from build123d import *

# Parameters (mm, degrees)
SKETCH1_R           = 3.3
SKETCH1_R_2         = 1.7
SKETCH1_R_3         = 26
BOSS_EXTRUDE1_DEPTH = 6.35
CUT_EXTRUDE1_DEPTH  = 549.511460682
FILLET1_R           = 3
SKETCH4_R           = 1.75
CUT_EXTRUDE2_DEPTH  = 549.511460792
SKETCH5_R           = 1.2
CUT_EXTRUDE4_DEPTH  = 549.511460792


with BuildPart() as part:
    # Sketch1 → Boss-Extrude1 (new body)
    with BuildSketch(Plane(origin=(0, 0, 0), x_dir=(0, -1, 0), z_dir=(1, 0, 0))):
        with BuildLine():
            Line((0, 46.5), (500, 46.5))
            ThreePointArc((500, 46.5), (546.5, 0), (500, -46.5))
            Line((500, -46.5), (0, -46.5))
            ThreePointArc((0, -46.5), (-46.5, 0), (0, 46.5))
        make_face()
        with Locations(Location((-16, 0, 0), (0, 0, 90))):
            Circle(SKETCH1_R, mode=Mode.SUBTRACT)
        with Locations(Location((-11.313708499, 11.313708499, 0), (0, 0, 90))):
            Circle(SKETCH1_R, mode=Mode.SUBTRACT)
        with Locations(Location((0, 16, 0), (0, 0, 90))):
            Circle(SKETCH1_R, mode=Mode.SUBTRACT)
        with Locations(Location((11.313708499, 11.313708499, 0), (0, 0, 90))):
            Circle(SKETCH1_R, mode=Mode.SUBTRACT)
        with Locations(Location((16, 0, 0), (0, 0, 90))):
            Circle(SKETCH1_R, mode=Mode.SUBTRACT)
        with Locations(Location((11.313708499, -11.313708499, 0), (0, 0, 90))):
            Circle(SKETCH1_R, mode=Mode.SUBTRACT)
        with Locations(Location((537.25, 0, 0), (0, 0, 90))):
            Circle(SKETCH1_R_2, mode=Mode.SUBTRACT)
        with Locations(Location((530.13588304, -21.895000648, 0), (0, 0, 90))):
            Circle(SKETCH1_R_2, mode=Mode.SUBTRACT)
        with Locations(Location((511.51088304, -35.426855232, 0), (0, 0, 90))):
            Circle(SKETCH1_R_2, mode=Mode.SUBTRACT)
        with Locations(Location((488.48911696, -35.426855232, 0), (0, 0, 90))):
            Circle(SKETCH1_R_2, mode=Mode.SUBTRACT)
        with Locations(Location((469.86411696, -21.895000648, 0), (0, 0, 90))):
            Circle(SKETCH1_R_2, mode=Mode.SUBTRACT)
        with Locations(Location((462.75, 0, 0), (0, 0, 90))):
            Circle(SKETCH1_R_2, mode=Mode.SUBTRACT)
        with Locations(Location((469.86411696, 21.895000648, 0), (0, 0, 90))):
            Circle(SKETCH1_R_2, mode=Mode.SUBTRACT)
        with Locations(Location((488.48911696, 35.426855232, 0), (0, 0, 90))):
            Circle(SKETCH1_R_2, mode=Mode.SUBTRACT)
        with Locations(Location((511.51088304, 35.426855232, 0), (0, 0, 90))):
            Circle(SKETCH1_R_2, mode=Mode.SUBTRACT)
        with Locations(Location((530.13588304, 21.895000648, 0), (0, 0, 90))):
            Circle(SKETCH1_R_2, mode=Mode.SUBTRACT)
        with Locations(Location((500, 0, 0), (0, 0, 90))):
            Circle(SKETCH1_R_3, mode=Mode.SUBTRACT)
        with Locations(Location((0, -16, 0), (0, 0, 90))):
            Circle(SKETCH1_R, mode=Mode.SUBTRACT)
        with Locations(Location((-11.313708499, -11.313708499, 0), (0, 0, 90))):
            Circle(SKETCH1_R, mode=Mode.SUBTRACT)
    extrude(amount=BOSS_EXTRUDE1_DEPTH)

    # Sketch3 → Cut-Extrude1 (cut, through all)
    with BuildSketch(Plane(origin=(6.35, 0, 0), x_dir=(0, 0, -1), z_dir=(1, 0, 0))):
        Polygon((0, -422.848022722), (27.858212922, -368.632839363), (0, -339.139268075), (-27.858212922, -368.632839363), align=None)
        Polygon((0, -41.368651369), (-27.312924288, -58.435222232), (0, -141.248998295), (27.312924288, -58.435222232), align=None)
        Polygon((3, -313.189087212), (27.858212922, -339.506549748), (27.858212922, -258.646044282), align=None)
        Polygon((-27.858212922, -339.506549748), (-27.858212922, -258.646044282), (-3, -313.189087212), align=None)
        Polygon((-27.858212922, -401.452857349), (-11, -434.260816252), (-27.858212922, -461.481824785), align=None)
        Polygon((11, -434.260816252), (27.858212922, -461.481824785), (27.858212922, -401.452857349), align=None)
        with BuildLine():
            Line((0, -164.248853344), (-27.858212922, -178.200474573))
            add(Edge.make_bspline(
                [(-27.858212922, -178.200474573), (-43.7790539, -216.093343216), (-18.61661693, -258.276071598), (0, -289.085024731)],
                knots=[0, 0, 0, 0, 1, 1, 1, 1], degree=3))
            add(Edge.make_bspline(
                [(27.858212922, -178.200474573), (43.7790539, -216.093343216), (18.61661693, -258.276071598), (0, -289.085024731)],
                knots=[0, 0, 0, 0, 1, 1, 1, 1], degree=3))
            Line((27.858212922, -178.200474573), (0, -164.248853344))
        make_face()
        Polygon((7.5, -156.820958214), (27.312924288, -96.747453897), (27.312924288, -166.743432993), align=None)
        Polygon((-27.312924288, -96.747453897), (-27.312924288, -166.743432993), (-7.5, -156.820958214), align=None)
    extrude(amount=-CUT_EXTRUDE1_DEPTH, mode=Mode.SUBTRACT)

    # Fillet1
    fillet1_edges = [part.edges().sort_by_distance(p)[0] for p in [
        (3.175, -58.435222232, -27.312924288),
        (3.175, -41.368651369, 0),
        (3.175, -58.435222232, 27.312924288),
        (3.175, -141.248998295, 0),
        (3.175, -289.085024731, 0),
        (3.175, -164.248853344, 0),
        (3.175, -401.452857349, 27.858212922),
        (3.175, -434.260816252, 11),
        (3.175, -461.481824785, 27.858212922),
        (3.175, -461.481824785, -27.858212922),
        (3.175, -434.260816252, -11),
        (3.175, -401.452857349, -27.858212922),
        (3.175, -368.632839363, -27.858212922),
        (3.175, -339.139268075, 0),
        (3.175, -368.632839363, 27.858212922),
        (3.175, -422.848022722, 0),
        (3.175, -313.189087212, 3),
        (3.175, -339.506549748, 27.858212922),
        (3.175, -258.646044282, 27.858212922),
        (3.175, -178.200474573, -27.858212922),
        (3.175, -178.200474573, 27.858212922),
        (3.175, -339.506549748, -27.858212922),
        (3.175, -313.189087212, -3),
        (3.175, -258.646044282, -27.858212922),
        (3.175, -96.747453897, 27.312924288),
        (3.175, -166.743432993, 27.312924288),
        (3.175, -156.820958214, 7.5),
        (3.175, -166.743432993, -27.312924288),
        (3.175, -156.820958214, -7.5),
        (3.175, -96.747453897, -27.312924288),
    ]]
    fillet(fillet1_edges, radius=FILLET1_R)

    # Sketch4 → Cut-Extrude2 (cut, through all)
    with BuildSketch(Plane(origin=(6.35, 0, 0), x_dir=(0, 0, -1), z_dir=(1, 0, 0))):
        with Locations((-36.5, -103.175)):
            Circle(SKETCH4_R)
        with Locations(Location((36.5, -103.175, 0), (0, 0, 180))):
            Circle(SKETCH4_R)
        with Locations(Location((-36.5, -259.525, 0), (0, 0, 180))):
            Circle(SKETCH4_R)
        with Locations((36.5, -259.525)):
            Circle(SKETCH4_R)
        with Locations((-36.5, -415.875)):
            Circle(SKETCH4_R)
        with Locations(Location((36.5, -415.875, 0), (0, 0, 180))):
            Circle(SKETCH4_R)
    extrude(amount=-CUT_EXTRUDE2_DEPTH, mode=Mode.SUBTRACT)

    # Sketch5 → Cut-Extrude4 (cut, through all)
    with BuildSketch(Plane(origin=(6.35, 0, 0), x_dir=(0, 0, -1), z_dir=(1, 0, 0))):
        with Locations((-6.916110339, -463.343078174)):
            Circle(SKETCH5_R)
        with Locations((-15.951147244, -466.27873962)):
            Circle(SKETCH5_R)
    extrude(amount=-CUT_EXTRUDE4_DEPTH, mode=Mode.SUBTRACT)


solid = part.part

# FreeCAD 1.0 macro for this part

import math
import FreeCAD as App
import Part
import Sketcher

V = App.Vector


def edges_at(feature, points):
    """Names of the edges that pass closest to the given points."""
    edges = feature.Shape.Edges
    near = lambda p: min(range(len(edges)), key=lambda i: edges[i].distToShape(Part.Vertex(*p))[0])
    return sorted({f"Edge{near(p) + 1}" for p in points})

doc = App.newDocument("Part")
body = doc.addObject("PartDesign::Body", "Body")

# Sketch on YZ plane
sketch1 = body.newObject("Sketcher::SketchObject", "Sketch")
sketch1.AttachmentSupport = (doc.getObject("YZ_Plane"), [""])
sketch1.MapMode = "FlatFace"
sketch1.addGeometry([
    Part.LineSegment(V(-500, -46.5, 0), V(0, -46.5, 0)),  # 0
    Part.ArcOfCircle(Part.Circle(V(0, 0, 0), V(0, 0, 1), 46.5), math.radians(-90), math.radians(90)),  # 1
    Part.LineSegment(V(0, 46.5, 0), V(-500, 46.5, 0)),  # 2
    Part.ArcOfCircle(Part.Circle(V(-500, 0, 0), V(0, 0, 1), 46.5), math.radians(90), math.radians(270)),  # 3
    Part.Circle(V(-511.5, 35.4, 0), V(0, 0, 1), 1.7),  # 4
    Part.Circle(V(-488.5, 35.4, 0), V(0, 0, 1), 1.7),  # 5
    Part.Circle(V(-530.1, 21.9, 0), V(0, 0, 1), 1.7),  # 6
    Part.Circle(V(-469.9, 21.9, 0), V(0, 0, 1), 1.7),  # 7
    Part.Circle(V(0, 16, 0), V(0, 0, 1), 3.3),  # 8
    Part.Circle(V(-11.3, 11.3, 0), V(0, 0, 1), 3.3),  # 9
    Part.Circle(V(11.3, 11.3, 0), V(0, 0, 1), 3.3),  # 10
    Part.Circle(V(-537.2, 0, 0), V(0, 0, 1), 1.7),  # 11
    Part.Circle(V(-500, 0, 0), V(0, 0, 1), 26),  # 12
    Part.Circle(V(-462.8, 0, 0), V(0, 0, 1), 1.7),  # 13
    Part.Circle(V(-530.1, -21.9, 0), V(0, 0, 1), 1.7),  # 14
    Part.Circle(V(-469.9, -21.9, 0), V(0, 0, 1), 1.7),  # 15
    Part.Circle(V(-511.5, -35.4, 0), V(0, 0, 1), 1.7),  # 16
    Part.Circle(V(-488.5, -35.4, 0), V(0, 0, 1), 1.7),  # 17
    Part.Circle(V(-16, 0, 0), V(0, 0, 1), 3.3),  # 18
    Part.Circle(V(16, 0, 0), V(0, 0, 1), 3.3),  # 19
    Part.Circle(V(-11.3, -11.3, 0), V(0, 0, 1), 3.3),  # 20
    Part.Circle(V(11.3, -11.3, 0), V(0, 0, 1), 3.3),  # 21
    Part.Circle(V(0, -16, 0), V(0, 0, 1), 3.3),  # 22
], False)
sketch1.addConstraint([
    Sketcher.Constraint("Tangent", 0, 2, 1, 1),
    Sketcher.Constraint("Tangent", 1, 2, 2, 1),
    Sketcher.Constraint("Tangent", 2, 2, 3, 1),
    Sketcher.Constraint("Tangent", 3, 2, 0, 1),
    Sketcher.Constraint("Horizontal", 0),
    Sketcher.Constraint("Horizontal", 2),
    Sketcher.Constraint("Coincident", 1, 3, -1, 1),
    Sketcher.Constraint("Coincident", 12, 3, 3, 3),
    Sketcher.Constraint("Equal", 4, 5),
    Sketcher.Constraint("Equal", 5, 6),
    Sketcher.Constraint("Equal", 6, 7),
    Sketcher.Constraint("Equal", 8, 9),
    Sketcher.Constraint("Equal", 9, 10),
    Sketcher.Constraint("Equal", 7, 11),
    Sketcher.Constraint("Equal", 11, 13),
    Sketcher.Constraint("Equal", 13, 14),
    Sketcher.Constraint("Equal", 14, 15),
    Sketcher.Constraint("Equal", 15, 16),
    Sketcher.Constraint("Equal", 16, 17),
    Sketcher.Constraint("Equal", 10, 18),
    Sketcher.Constraint("Equal", 18, 19),
    Sketcher.Constraint("Equal", 19, 20),
    Sketcher.Constraint("Equal", 20, 21),
    Sketcher.Constraint("Equal", 21, 22),
    Sketcher.Constraint("Symmetric", 18, 3, 19, 3, -1, 1),
    Sketcher.Constraint("Symmetric", 10, 3, 20, 3, -1, 1),
    Sketcher.Constraint("Symmetric", 9, 3, 21, 3, -1, 1),
    Sketcher.Constraint("Symmetric", 8, 3, 22, 3, -1, 1),
    Sketcher.Constraint("Symmetric", 9, 3, 10, 3, -2),
    Sketcher.Constraint("Symmetric", 6, 3, 14, 3, -1),
    Sketcher.Constraint("Symmetric", 7, 3, 15, 3, -1),
    Sketcher.Constraint("Symmetric", 4, 3, 16, 3, -1),
    Sketcher.Constraint("Symmetric", 5, 3, 17, 3, -1),
    Sketcher.Constraint("PointOnObject", 8, 3, -2),
    Sketcher.Constraint("PointOnObject", 11, 3, -1),
    Sketcher.Constraint("PointOnObject", 13, 3, -1),
    Sketcher.Constraint("PointOnObject", 18, 3, -1),
    Sketcher.Constraint("Horizontal", 4, 3, 5, 3),
    Sketcher.Constraint("Horizontal", 6, 3, 7, 3),
    Sketcher.Constraint("Diameter", 12, 52.0),
    Sketcher.Constraint("Diameter", 4, 3.4),
    Sketcher.Constraint("Diameter", 8, 6.6),
    Sketcher.Constraint("Radius", 1, 46.5),
    Sketcher.Constraint("DistanceX", 0, 1, 0, 2, 500.0),
    Sketcher.Constraint("DistanceY", -1, 1, 8, 3, 16.0),
    Sketcher.Constraint("DistanceX", 18, 3, -1, 1, 16.0),
    Sketcher.Constraint("DistanceX", 11, 3, -1, 1, 537.25),
    Sketcher.Constraint("DistanceX", 13, 3, -1, 1, 462.75),
    Sketcher.Constraint("DistanceY", 14, 3, 6, 3, 43.790001),
    Sketcher.Constraint("DistanceX", 6, 3, 4, 3, 18.625),
    Sketcher.Constraint("DistanceX", 5, 3, 7, 3, 18.625),
    Sketcher.Constraint("DistanceX", 9, 3, -1, 1, 11.313708),
    Sketcher.Constraint("DistanceY", -1, 1, 9, 3, 11.313708),
    Sketcher.Constraint("DistanceX", 7, 3, 9, 3, 458.550408),
    Sketcher.Constraint("DistanceX", 4, 3, -1, 1, 511.510883),
    Sketcher.Constraint("DistanceY", -1, 1, 4, 3, 35.426855),
])
pad1 = body.newObject("PartDesign::Pad", "Pad")
pad1.Profile = sketch1
pad1.Length = 6.35

# Sketch on YZ plane
sketch2 = body.newObject("Sketcher::SketchObject", "Sketch001")
sketch2.AttachmentSupport = (doc.getObject("YZ_Plane"), [""])
sketch2.MapMode = "FlatFace"
sketch2.AttachmentOffset = App.Placement(V(0, 0, 6.35), App.Rotation())
sketch2.addGeometry([
    Part.LineSegment(V(-422.848023, 0, 0), V(-368.632839, -27.858213, 0)),  # 0
    Part.LineSegment(V(-368.632839, -27.858213, 0), V(-339.139268, 0, 0)),  # 1
    Part.LineSegment(V(-339.139268, 0, 0), V(-368.632839, 27.858213, 0)),  # 2
    Part.LineSegment(V(-368.632839, 27.858213, 0), V(-422.848023, 0, 0)),  # 3
    Part.LineSegment(V(-41.368651, 0, 0), V(-58.435222, 27.312924, 0)),  # 4
    Part.LineSegment(V(-58.435222, 27.312924, 0), V(-141.248998, 0, 0)),  # 5
    Part.LineSegment(V(-141.248998, 0, 0), V(-58.435222, -27.312924, 0)),  # 6
    Part.LineSegment(V(-58.435222, -27.312924, 0), V(-41.368651, 0, 0)),  # 7
    Part.LineSegment(V(-313.189087, -3, 0), V(-339.50655, -27.858213, 0)),  # 8
    Part.LineSegment(V(-339.50655, -27.858213, 0), V(-258.646044, -27.858213, 0)),  # 9
    Part.LineSegment(V(-258.646044, -27.858213, 0), V(-313.189087, -3, 0)),  # 10
    Part.LineSegment(V(-258.646044, 27.858213, 0), V(-339.50655, 27.858213, 0)),  # 11
    Part.LineSegment(V(-339.50655, 27.858213, 0), V(-313.189087, 3, 0)),  # 12
    Part.LineSegment(V(-313.189087, 3, 0), V(-258.646044, 27.858213, 0)),  # 13
    Part.LineSegment(V(-434.260816, 11, 0), V(-401.452857, 27.858213, 0)),  # 14
    Part.LineSegment(V(-401.452857, 27.858213, 0), V(-461.481825, 27.858213, 0)),  # 15
    Part.LineSegment(V(-461.481825, 27.858213, 0), V(-434.260816, 11, 0)),  # 16
    Part.LineSegment(V(-434.260816, -11, 0), V(-461.481825, -27.858213, 0)),  # 17
    Part.LineSegment(V(-461.481825, -27.858213, 0), V(-401.452857, -27.858213, 0)),  # 18
    Part.LineSegment(V(-401.452857, -27.858213, 0), V(-434.260816, -11, 0)),  # 19
    Part.LineSegment(V(-164.248853, 0, 0), V(-178.200475, 27.858213, 0)),  # 20
    Part.BSplineCurve([V(-178.200475, 27.858213, 0), V(-216.093343, 43.779054, 0), V(-258.276072, 18.616617, 0), V(-289.085025, 0, 0)], [4, 4], [0, 1], False, 3, [1, 1, 1, 1], False),  # 21
    Part.BSplineCurve([V(-178.200475, -27.858213, 0), V(-216.093343, -43.779054, 0), V(-258.276072, -18.616617, 0), V(-289.085025, 0, 0)], [4, 4], [0, 1], False, 3, [1, 1, 1, 1], False),  # 22
    Part.LineSegment(V(-178.200475, -27.858213, 0), V(-164.248853, 0, 0)),  # 23
    Part.LineSegment(V(-96.747454, -27.312924, 0), V(-156.820958, -7.5, 0)),  # 24
    Part.LineSegment(V(-156.820958, -7.5, 0), V(-166.743433, -27.312924, 0)),  # 25
    Part.LineSegment(V(-166.743433, -27.312924, 0), V(-96.747454, -27.312924, 0)),  # 26
    Part.LineSegment(V(-96.747454, 27.312924, 0), V(-166.743433, 27.312924, 0)),  # 27
    Part.LineSegment(V(-166.743433, 27.312924, 0), V(-156.820958, 7.5, 0)),  # 28
    Part.LineSegment(V(-156.820958, 7.5, 0), V(-96.747454, 27.312924, 0)),  # 29
], False)
sketch2.addConstraint([
    Sketcher.Constraint("Block", 21),
    Sketcher.Constraint("Block", 22),
    Sketcher.Constraint("Coincident", 0, 2, 1, 1),
    Sketcher.Constraint("Coincident", 1, 2, 2, 1),
    Sketcher.Constraint("Coincident", 2, 2, 3, 1),
    Sketcher.Constraint("Coincident", 3, 2, 0, 1),
    Sketcher.Constraint("Coincident", 4, 2, 5, 1),
    Sketcher.Constraint("Coincident", 5, 2, 6, 1),
    Sketcher.Constraint("Coincident", 6, 2, 7, 1),
    Sketcher.Constraint("Coincident", 7, 2, 4, 1),
    Sketcher.Constraint("Coincident", 8, 2, 9, 1),
    Sketcher.Constraint("Coincident", 9, 2, 10, 1),
    Sketcher.Constraint("Coincident", 10, 2, 8, 1),
    Sketcher.Constraint("Coincident", 11, 2, 12, 1),
    Sketcher.Constraint("Coincident", 12, 2, 13, 1),
    Sketcher.Constraint("Coincident", 13, 2, 11, 1),
    Sketcher.Constraint("Coincident", 14, 2, 15, 1),
    Sketcher.Constraint("Coincident", 15, 2, 16, 1),
    Sketcher.Constraint("Coincident", 16, 2, 14, 1),
    Sketcher.Constraint("Coincident", 17, 2, 18, 1),
    Sketcher.Constraint("Coincident", 18, 2, 19, 1),
    Sketcher.Constraint("Coincident", 19, 2, 17, 1),
    Sketcher.Constraint("Coincident", 20, 2, 21, 1),
    Sketcher.Constraint("Coincident", 22, 1, 23, 1),
    Sketcher.Constraint("Coincident", 23, 2, 20, 1),
    Sketcher.Constraint("Coincident", 24, 2, 25, 1),
    Sketcher.Constraint("Coincident", 25, 2, 26, 1),
    Sketcher.Constraint("Coincident", 26, 2, 24, 1),
    Sketcher.Constraint("Coincident", 27, 2, 28, 1),
    Sketcher.Constraint("Coincident", 28, 2, 29, 1),
    Sketcher.Constraint("Coincident", 29, 2, 27, 1),
    Sketcher.Constraint("Horizontal", 9),
    Sketcher.Constraint("Horizontal", 11),
    Sketcher.Constraint("Horizontal", 15),
    Sketcher.Constraint("Horizontal", 18),
    Sketcher.Constraint("Horizontal", 26),
    Sketcher.Constraint("Horizontal", 27),
    Sketcher.Constraint("PointOnObject", 1, 2, -1),
    Sketcher.Constraint("PointOnObject", 3, 2, -1),
    Sketcher.Constraint("PointOnObject", 5, 2, -1),
    Sketcher.Constraint("PointOnObject", 7, 2, -1),
    Sketcher.Constraint("PointOnObject", 23, 2, -1),
    Sketcher.Constraint("DistanceY", 10, 2, -1, 1, 3.0),
    Sketcher.Constraint("DistanceY", -1, 1, 12, 2, 3.0),
    Sketcher.Constraint("DistanceY", -1, 1, 16, 2, 11.0),
    Sketcher.Constraint("DistanceY", 19, 2, -1, 1, 11.0),
    Sketcher.Constraint("DistanceY", 24, 2, 28, 2, 15.0),
    Sketcher.Constraint("DistanceY", 24, 2, -1, 1, 7.5),
    Sketcher.Constraint("DistanceX", 5, 2, -1, 1, 141.248998),
    Sketcher.Constraint("DistanceX", 26, 1, 26, 2, 69.995979),
    Sketcher.Constraint("DistanceX", 27, 2, 27, 1, 69.995979),
    Sketcher.Constraint("DistanceX", 3, 2, 4, 2, 364.4128),
    Sketcher.Constraint("Distance", 1, 40.570319),
    Sketcher.Constraint("Distance", 2, 40.570319),
    Sketcher.Constraint("Distance", 4, 32.206578),
    Sketcher.Constraint("Distance", 5, 87.20159),
    Sketcher.Constraint("Distance", 6, 87.20159),
    Sketcher.Constraint("Distance", 7, 32.206578),
    Sketcher.Constraint("Distance", 10, 59.94059),
    Sketcher.Constraint("Distance", 13, 59.94059),
    Sketcher.Constraint("Distance", 14, 36.88579),
    Sketcher.Constraint("Distance", 19, 36.88579),
    Sketcher.Constraint("Distance", 25, 22.158688),
    Sketcher.Constraint("Distance", 28, 22.158688),
    Sketcher.Constraint("DistanceX", 9, 1, 9, 2, 80.860505),
    Sketcher.Constraint("DistanceX", 11, 2, 11, 1, 80.860505),
    Sketcher.Constraint("DistanceX", 15, 2, 15, 1, 60.028967),
    Sketcher.Constraint("DistanceX", 18, 1, 18, 2, 60.028967),
    Sketcher.Constraint("DistanceX", 0, 2, -1, 1, 368.632839),
    Sketcher.Constraint("DistanceX", 1, 2, -1, 1, 339.139268),
    Sketcher.Constraint("DistanceX", 2, 2, -1, 1, 368.632839),
    Sketcher.Constraint("DistanceX", 7, 2, -1, 1, 41.368651),
    Sketcher.Constraint("DistanceX", 8, 2, -1, 1, 339.50655),
    Sketcher.Constraint("DistanceX", 11, 2, -1, 1, 339.50655),
    Sketcher.Constraint("DistanceX", 24, 2, -1, 1, 156.820958),
    Sketcher.Constraint("DistanceX", 28, 2, -1, 1, 156.820958),
    Sketcher.Constraint("DistanceX", 1, 2, 10, 2, 25.950181),
    Sketcher.Constraint("DistanceX", 1, 2, 12, 2, 25.950181),
    Sketcher.Constraint("DistanceX", 14, 2, 1, 2, 62.313589),
    Sketcher.Constraint("DistanceX", 15, 2, 16, 2, 27.221009),
    Sketcher.Constraint("DistanceX", 17, 2, 16, 2, 27.221009),
    Sketcher.Constraint("DistanceX", 17, 2, 19, 2, 27.221009),
    Sketcher.Constraint("DistanceX", 20, 2, 23, 2, 13.951621),
    Sketcher.Constraint("DistanceX", 25, 2, 23, 2, 2.49458),
    Sketcher.Constraint("DistanceX", 20, 2, 27, 2, 11.457042),
])
pocket1 = body.newObject("PartDesign::Pocket", "Pocket")
pocket1.Profile = sketch2
pocket1.Type = "ThroughAll"
doc.recompute()

fillet = body.newObject("PartDesign::Fillet", "Fillet")
fillet.Base = (pocket1, edges_at(pocket1, [
    (3.175, -58.435, -27.313),
    (3.175, -41.369, 0),
    (3.175, -58.435, 27.313),
    (3.175, -141.249, 0),
    (3.175, -289.085, 0),
    (3.175, -164.249, 0),
    (3.175, -401.453, 27.858),
    (3.175, -434.261, 11),
    (3.175, -461.482, 27.858),
    (3.175, -461.482, -27.858),
    (3.175, -434.261, -11),
    (3.175, -401.453, -27.858),
    (3.175, -368.633, -27.858),
    (3.175, -339.139, 0),
    (3.175, -368.633, 27.858),
    (3.175, -422.848, 0),
    (3.175, -313.189, 3),
    (3.175, -339.507, 27.858),
    (3.175, -258.646, 27.858),
    (3.175, -178.2, -27.858),
    (3.175, -178.2, 27.858),
    (3.175, -339.507, -27.858),
    (3.175, -313.189, -3),
    (3.175, -258.646, -27.858),
    (3.175, -96.747, 27.313),
    (3.175, -166.743, 27.313),
    (3.175, -156.821, 7.5),
    (3.175, -166.743, -27.313),
    (3.175, -156.821, -7.5),
    (3.175, -96.747, -27.313),
]))
fillet.Radius = 3

# Sketch on YZ plane
sketch3 = body.newObject("Sketcher::SketchObject", "Sketch002")
sketch3.AttachmentSupport = (doc.getObject("YZ_Plane"), [""])
sketch3.MapMode = "FlatFace"
sketch3.AttachmentOffset = App.Placement(V(0, 0, 6.35), App.Rotation())
sketch3.addGeometry([
    Part.Circle(V(-103.2, 36.5, 0), V(0, 0, 1), 1.8),  # 0
    Part.Circle(V(-103.2, -36.5, 0), V(0, 0, 1), 1.8),  # 1
    Part.Circle(V(-259.5, 36.5, 0), V(0, 0, 1), 1.8),  # 2
    Part.Circle(V(-259.5, -36.5, 0), V(0, 0, 1), 1.8),  # 3
    Part.Circle(V(-415.9, 36.5, 0), V(0, 0, 1), 1.8),  # 4
    Part.Circle(V(-415.9, -36.5, 0), V(0, 0, 1), 1.8),  # 5
], False)
sketch3.addConstraint([
    Sketcher.Constraint("Equal", 0, 1),
    Sketcher.Constraint("Equal", 1, 2),
    Sketcher.Constraint("Equal", 2, 3),
    Sketcher.Constraint("Equal", 3, 4),
    Sketcher.Constraint("Equal", 4, 5),
    Sketcher.Constraint("Symmetric", 0, 3, 1, 3, -1),
    Sketcher.Constraint("Symmetric", 2, 3, 3, 3, -1),
    Sketcher.Constraint("Symmetric", 4, 3, 5, 3, -1),
    Sketcher.Constraint("Horizontal", 0, 3, 2, 3),
    Sketcher.Constraint("Horizontal", 2, 3, 4, 3),
    Sketcher.Constraint("Diameter", 0, 3.5),
    Sketcher.Constraint("DistanceY", 1, 3, 0, 3, 73.0),
    Sketcher.Constraint("DistanceX", 4, 3, 0, 3, 312.7),
    Sketcher.Constraint("DistanceX", 2, 3, 0, 3, 156.35),
    Sketcher.Constraint("DistanceX", 0, 3, -1, 1, 103.175),
])
pocket2 = body.newObject("PartDesign::Pocket", "Pocket001")
pocket2.Profile = sketch3
pocket2.Type = "ThroughAll"

# Sketch on YZ plane
sketch4 = body.newObject("Sketcher::SketchObject", "Sketch003")
sketch4.AttachmentSupport = (doc.getObject("YZ_Plane"), [""])
sketch4.MapMode = "FlatFace"
sketch4.AttachmentOffset = App.Placement(V(0, 0, 6.35), App.Rotation())
sketch4.addGeometry([
    Part.Circle(V(-463.3, 6.9, 0), V(0, 0, 1), 1.2),
    Part.Circle(V(-466.3, 16, 0), V(0, 0, 1), 1.2),
], False)
sketch4.addConstraint([
    Sketcher.Constraint("Equal", 0, 1),
    Sketcher.Constraint("Diameter", 0, 2.4),
    Sketcher.Constraint("DistanceX", 0, 3, -1, 1, 463.343078),
    Sketcher.Constraint("DistanceY", -1, 1, 0, 3, 6.91611),
    Sketcher.Constraint("DistanceX", 1, 3, -1, 1, 466.27874),
    Sketcher.Constraint("DistanceY", -1, 1, 1, 3, 15.951147),
])
pocket3 = body.newObject("PartDesign::Pocket", "Pocket002")
pocket3.Profile = sketch4
pocket3.Type = "ThroughAll"

doc.recompute()
